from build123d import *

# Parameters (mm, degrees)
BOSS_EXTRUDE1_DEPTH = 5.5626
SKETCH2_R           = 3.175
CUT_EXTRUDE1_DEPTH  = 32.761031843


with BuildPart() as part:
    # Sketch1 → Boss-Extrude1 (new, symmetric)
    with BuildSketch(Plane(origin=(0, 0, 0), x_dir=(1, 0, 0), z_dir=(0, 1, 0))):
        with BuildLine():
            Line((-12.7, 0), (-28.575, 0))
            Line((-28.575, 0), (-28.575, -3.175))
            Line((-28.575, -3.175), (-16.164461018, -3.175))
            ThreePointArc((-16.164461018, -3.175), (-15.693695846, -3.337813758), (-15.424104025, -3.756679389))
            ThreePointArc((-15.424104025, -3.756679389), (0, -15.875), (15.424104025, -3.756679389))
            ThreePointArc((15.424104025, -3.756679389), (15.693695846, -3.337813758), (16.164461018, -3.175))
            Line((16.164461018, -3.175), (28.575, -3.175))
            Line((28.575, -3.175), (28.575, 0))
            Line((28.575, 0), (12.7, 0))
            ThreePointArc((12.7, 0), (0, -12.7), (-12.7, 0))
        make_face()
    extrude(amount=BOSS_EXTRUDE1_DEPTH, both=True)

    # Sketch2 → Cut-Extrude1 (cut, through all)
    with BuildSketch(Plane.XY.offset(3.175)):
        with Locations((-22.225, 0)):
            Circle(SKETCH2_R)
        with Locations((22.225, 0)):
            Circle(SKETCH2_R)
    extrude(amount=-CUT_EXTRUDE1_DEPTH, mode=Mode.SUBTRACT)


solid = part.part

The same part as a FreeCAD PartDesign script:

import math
import FreeCAD as App
import Part
import Sketcher
from FreeCAD import Vector
Q = App.Units.Quantity

doc = App.newDocument("Part")
body = doc.addObject("PartDesign::Body", "Body")

sketch1 = doc.addObject("Sketcher::SketchObject", "Sketch")
body.addObject(sketch1)
sketch1.AttachmentSupport = (doc.XZ_Plane, [""])
sketch1.MapMode = "FlatFace"
sketch1.addGeometry(Part.LineSegment(Vector(-12.7, 0, 0), Vector(-28.6, 0, 0)), False)
sketch1.addGeometry(Part.LineSegment(Vector(-28.6, 0, 0), Vector(-28.6, 3.2, 0)), False)
sketch1.addGeometry(Part.LineSegment(Vector(-28.6, 3.2, 0), Vector(-16.2, 3.2, 0)), False)
sketch1.addGeometry(Part.ArcOfCircle(Part.Circle(Vector(-16.2, 3.9, 0), Vector(0, 0, 1), 0.8), math.radians(-90), math.radians(-14)), False)
sketch1.addGeometry(Part.ArcOfCircle(Part.Circle(Vector(0, 0, 0), Vector(0, 0, 1), 15.9), math.radians(14), math.radians(166)), False)
sketch1.addGeometry(Part.ArcOfCircle(Part.Circle(Vector(16.2, 3.9, 0), Vector(0, 0, 1), 0.8), math.radians(-166), math.radians(-90)), False)
sketch1.addGeometry(Part.LineSegment(Vector(16.2, 3.2, 0), Vector(28.6, 3.2, 0)), False)
sketch1.addGeometry(Part.LineSegment(Vector(28.6, 3.2, 0), Vector(28.6, 0, 0)), False)
sketch1.addGeometry(Part.LineSegment(Vector(28.6, 0, 0), Vector(12.7, 0, 0)), False)
sketch1.addGeometry(Part.ArcOfCircle(Part.Circle(Vector(0, 0, 0), Vector(0, 0, 1), 12.7), math.radians(0), math.radians(180)), False)
sketch1.addConstraint(Sketcher.Constraint("Coincident", 0, 2, 1, 1))
sketch1.addConstraint(Sketcher.Constraint("Coincident", 1, 2, 2, 1))
sketch1.addConstraint(Sketcher.Constraint("Tangent", 2, 2, 3, 1))
sketch1.addConstraint(Sketcher.Constraint("Tangent", 3, 2, 4, 2))
sketch1.addConstraint(Sketcher.Constraint("Tangent", 4, 1, 5, 1))
sketch1.addConstraint(Sketcher.Constraint("Tangent", 5, 2, 6, 1))
sketch1.addConstraint(Sketcher.Constraint("Coincident", 6, 2, 7, 1))
sketch1.addConstraint(Sketcher.Constraint("Coincident", 7, 2, 8, 1))
sketch1.addConstraint(Sketcher.Constraint("Coincident", 8, 2, 9, 1))
sketch1.addConstraint(Sketcher.Constraint("Coincident", 9, 2, 0, 1))
sketch1.addConstraint(Sketcher.Constraint("Horizontal", 0))
sketch1.addConstraint(Sketcher.Constraint("Vertical", 1))
sketch1.addConstraint(Sketcher.Constraint("Horizontal", 2))
sketch1.addConstraint(Sketcher.Constraint("Horizontal", 6))
sketch1.addConstraint(Sketcher.Constraint("Vertical", 7))
sketch1.addConstraint(Sketcher.Constraint("Horizontal", 8))
sketch1.addConstraint(Sketcher.Constraint("Coincident", 4, 3, -1, 1))
sketch1.addConstraint(Sketcher.Constraint("Coincident", 9, 3, -1, 1))
sketch1.addConstraint(Sketcher.Constraint("Equal", 3, 5))
sketch1.addConstraint(Sketcher.Constraint("Symmetric", 0, 2, 7, 2, -1, 1))
sketch1.addConstraint(Sketcher.Constraint("PointOnObject", 0, 2, -1))
sketch1.addConstraint(Sketcher.Constraint("Horizontal", 3, 3, 5, 3))
sketch1.addConstraint(Sketcher.Constraint("Radius", 9, Q("0.5 in")))
sketch1.addConstraint(Sketcher.Constraint("Radius", 3, Q("0.03 in")))
sketch1.addConstraint(Sketcher.Constraint("Radius", 4, Q("0.625 in")))
sketch1.addConstraint(Sketcher.Constraint("DistanceX", 0, 2, 0, 1, Q("0.625 in")))
sketch1.addConstraint(Sketcher.Constraint("DistanceY", 1, 1, 1, 2, Q("0.125 in")))
pad1 = doc.addObject("PartDesign::Pad", "Pad")
body.addObject(pad1)
pad1.Profile = sketch1
pad1.Length = Q("0.438 in")
pad1.Midplane = True

sketch2 = doc.addObject("Sketcher::SketchObject", "Sketch001")
body.addObject(sketch2)
sketch2.AttachmentSupport = (doc.XY_Plane, [""])
sketch2.MapMode = "FlatFace"
sketch2.AttachmentOffset = App.Placement(Vector(0, 0, 0.125 * 25.4), App.Rotation())
sketch2.addGeometry(Part.Circle(Vector(-22.2, 0, 0), Vector(0, 0, 1), 3.2), False)
sketch2.addGeometry(Part.Circle(Vector(22.2, 0, 0), Vector(0, 0, 1), 3.2), False)
sketch2.addConstraint(Sketcher.Constraint("Equal", 0, 1))
sketch2.addConstraint(Sketcher.Constraint("Symmetric", 0, 3, 1, 3, -1, 1))
sketch2.addConstraint(Sketcher.Constraint("PointOnObject", 0, 3, -1))
sketch2.addConstraint(Sketcher.Constraint("Diameter", 0, Q("0.25 in")))
sketch2.addConstraint(Sketcher.Constraint("DistanceX", 0, 3, 1, 3, Q("1.75 in")))
pocket1 = doc.addObject("PartDesign::Pocket", "Pocket")
body.addObject(pocket1)
pocket1.Profile = sketch2
pocket1.Type = "ThroughAll"

doc.recompute()
